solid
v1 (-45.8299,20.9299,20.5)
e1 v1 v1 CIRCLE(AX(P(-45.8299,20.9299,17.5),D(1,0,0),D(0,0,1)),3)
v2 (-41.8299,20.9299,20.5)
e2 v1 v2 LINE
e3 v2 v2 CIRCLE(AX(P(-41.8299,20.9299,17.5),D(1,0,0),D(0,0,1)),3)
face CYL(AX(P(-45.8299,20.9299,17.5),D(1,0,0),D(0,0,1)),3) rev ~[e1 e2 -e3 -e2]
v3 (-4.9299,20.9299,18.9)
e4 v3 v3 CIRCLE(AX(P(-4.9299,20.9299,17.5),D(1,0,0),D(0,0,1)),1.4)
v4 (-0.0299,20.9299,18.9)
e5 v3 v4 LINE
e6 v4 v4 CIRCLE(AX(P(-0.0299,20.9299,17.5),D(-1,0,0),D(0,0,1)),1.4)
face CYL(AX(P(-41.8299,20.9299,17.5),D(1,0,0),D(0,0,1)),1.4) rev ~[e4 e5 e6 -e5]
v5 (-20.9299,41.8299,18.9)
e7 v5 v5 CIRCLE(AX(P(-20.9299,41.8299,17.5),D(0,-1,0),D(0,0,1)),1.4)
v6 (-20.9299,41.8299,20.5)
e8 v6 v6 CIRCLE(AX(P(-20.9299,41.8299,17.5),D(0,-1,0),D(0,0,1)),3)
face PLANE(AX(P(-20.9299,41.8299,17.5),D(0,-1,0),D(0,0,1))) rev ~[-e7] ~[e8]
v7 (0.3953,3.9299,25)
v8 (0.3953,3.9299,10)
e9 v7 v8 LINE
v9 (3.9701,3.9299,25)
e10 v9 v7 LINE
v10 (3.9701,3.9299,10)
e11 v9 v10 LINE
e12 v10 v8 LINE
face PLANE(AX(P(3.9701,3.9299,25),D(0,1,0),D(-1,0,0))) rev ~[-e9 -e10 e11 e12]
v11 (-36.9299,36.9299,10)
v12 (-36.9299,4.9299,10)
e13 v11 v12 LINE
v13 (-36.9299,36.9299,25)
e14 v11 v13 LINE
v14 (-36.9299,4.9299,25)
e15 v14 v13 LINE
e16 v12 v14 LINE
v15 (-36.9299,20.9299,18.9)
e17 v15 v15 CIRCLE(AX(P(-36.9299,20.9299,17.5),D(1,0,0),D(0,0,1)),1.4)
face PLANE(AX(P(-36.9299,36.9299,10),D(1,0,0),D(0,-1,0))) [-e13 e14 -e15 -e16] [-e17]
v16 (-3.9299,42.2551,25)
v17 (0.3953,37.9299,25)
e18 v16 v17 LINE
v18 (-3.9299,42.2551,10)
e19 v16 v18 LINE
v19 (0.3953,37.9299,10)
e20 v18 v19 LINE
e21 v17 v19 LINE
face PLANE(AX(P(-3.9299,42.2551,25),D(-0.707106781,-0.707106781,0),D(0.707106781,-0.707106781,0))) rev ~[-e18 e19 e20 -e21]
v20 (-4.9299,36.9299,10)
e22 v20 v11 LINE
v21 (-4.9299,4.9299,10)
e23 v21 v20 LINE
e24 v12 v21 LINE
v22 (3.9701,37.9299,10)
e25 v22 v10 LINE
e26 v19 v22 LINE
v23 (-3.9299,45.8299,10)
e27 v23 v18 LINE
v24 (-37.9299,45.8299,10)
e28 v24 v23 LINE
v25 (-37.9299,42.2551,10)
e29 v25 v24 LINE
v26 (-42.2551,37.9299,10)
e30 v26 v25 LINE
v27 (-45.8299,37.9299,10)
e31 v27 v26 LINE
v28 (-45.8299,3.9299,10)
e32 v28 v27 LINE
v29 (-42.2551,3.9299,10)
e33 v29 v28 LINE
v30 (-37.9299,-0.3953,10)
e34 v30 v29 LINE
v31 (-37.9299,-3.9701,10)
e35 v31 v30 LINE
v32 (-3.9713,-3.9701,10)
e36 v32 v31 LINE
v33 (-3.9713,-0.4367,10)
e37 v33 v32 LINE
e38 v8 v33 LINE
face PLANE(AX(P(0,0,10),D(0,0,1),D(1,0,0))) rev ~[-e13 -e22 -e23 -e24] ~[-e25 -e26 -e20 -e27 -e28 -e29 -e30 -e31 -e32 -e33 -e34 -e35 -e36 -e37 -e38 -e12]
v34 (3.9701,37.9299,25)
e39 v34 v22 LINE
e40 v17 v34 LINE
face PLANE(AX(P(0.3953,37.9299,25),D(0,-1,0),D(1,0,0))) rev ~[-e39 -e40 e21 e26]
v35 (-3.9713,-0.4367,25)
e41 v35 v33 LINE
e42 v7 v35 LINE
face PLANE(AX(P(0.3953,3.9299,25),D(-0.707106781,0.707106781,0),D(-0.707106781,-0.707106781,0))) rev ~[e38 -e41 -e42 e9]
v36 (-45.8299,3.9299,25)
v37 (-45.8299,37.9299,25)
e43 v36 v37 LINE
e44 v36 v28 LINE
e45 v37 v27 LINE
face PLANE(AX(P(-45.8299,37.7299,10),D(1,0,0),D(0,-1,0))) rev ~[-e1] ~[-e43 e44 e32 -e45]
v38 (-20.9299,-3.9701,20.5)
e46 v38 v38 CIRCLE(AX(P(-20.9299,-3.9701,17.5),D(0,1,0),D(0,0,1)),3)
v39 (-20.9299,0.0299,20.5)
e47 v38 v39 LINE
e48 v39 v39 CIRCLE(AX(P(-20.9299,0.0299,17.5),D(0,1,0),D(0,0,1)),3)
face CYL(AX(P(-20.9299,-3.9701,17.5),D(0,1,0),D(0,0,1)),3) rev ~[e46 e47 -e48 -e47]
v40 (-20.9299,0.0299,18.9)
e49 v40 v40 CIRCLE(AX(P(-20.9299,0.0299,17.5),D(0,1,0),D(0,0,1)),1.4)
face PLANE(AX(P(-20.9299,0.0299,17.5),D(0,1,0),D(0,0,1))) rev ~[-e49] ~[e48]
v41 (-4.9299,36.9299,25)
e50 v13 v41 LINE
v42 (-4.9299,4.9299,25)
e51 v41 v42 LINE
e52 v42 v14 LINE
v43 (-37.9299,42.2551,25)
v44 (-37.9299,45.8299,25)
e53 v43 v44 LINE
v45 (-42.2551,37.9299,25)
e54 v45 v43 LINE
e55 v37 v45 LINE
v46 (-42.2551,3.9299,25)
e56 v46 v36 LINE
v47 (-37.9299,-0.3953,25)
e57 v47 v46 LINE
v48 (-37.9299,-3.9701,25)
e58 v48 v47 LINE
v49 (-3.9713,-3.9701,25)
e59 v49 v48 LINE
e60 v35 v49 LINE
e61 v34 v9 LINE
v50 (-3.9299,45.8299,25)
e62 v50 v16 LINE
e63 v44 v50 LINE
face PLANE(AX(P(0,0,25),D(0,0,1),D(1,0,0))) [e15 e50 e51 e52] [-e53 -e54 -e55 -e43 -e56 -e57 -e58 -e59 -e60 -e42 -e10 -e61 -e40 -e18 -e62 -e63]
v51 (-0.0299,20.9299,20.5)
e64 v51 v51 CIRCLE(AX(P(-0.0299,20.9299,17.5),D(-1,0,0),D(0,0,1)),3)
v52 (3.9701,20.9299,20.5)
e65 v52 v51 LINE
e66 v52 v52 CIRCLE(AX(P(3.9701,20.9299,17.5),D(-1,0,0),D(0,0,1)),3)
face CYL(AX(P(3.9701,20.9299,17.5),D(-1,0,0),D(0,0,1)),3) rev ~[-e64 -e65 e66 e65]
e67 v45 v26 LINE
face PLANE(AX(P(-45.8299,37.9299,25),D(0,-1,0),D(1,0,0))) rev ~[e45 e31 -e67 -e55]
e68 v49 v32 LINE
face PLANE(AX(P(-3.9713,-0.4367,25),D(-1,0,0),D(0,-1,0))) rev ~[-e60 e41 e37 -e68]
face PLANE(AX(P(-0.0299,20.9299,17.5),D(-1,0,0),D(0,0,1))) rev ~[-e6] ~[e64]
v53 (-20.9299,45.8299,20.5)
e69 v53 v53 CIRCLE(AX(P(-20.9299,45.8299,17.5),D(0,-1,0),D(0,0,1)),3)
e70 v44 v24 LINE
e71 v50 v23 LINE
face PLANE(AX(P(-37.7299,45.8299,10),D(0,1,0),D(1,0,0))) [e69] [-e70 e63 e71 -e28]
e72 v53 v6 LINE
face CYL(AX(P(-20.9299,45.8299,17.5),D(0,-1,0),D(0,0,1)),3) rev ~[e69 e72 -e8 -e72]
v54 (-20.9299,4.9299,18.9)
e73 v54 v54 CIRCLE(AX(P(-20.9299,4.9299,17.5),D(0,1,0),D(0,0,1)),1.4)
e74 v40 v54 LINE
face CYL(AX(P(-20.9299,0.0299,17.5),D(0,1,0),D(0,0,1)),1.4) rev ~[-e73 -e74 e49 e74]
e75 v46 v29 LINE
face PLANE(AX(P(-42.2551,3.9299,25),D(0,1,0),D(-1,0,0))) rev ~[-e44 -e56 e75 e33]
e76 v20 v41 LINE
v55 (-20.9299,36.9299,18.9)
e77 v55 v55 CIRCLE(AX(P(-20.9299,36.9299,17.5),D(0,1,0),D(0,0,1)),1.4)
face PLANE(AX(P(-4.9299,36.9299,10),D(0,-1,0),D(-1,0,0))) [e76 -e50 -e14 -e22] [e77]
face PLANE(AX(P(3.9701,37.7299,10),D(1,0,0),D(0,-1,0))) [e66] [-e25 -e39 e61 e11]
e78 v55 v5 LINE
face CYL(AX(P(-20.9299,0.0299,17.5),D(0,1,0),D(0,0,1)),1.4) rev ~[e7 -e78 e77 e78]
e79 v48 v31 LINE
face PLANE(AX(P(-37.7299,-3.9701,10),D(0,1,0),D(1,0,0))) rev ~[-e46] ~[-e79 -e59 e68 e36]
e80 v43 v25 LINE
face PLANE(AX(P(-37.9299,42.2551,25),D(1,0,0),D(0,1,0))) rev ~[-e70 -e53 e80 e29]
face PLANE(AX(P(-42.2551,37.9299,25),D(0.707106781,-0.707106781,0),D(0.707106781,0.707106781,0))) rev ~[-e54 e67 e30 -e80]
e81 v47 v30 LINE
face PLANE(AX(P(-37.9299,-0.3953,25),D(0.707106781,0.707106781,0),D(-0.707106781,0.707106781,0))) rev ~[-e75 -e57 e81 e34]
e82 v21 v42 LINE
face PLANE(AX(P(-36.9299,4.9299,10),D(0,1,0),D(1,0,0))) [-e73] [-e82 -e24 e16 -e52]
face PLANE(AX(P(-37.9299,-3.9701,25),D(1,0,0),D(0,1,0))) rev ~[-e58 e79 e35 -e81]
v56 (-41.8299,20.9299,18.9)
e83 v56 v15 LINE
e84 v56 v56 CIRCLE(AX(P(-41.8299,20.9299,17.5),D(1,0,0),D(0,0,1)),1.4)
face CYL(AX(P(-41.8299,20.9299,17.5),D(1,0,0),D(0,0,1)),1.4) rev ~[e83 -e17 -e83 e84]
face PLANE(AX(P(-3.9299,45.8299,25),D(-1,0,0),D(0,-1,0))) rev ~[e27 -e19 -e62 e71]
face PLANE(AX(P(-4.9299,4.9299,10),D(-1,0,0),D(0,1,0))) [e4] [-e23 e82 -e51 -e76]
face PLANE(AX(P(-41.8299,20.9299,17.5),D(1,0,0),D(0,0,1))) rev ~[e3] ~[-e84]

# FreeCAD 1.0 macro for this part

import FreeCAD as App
import Part
import Sketcher
from FreeCAD import Vector


def add_polygon(sketch, points):
    """Adds a closed chain of lines whose ends are joined by coincident constraints."""
    first, n = sketch.GeometryCount, len(points)
    for a, b in zip(points, points[1:] + points[:1]):
        sketch.addGeometry(Part.LineSegment(App.Vector(*a, 0), App.Vector(*b, 0)), False)
    for i in range(n):
        sketch.addConstraint(Sketcher.Constraint("Coincident", first + i, 2, first + (i + 1) % n, 1))

doc = App.newDocument("Part")
body = doc.addObject("PartDesign::Body", "Body")

sketch1 = body.newObject("Sketcher::SketchObject", "Sketch")
sketch1.AttachmentSupport = (doc.getObject("XY_Plane"), [""])
sketch1.MapMode = "FlatFace"
sketch1.AttachmentOffset = App.Placement(Vector(0, 0, 10), App.Rotation())
add_polygon(sketch1, [(-4.171, -0.354), (0.312, 4.13), (3.97, 4.13), (3.97, 37.73), (0.312, 37.73), (-4.13, 42.172), (-4.13, 45.83), (-37.73, 45.83), (-37.73, 42.172), (-42.172, 37.73), (-45.83, 37.73), (-45.83, 4.13), (-42.172, 4.13), (-37.689, -0.354), (-37.73, -0.354), (-37.73, -3.97), (-4.171, -3.97)])
sketch1.addConstraint(Sketcher.Constraint("Horizontal", 1))
sketch1.addConstraint(Sketcher.Constraint("Vertical", 2))
sketch1.addConstraint(Sketcher.Constraint("Horizontal", 3))
sketch1.addConstraint(Sketcher.Constraint("Vertical", 5))
sketch1.addConstraint(Sketcher.Constraint("Horizontal", 6))
sketch1.addConstraint(Sketcher.Constraint("Vertical", 7))
sketch1.addConstraint(Sketcher.Constraint("Horizontal", 9))
sketch1.addConstraint(Sketcher.Constraint("Vertical", 10))
sketch1.addConstraint(Sketcher.Constraint("Horizontal", 11))
sketch1.addConstraint(Sketcher.Constraint("Horizontal", 13))
sketch1.addConstraint(Sketcher.Constraint("Vertical", 14))
sketch1.addConstraint(Sketcher.Constraint("Horizontal", 15))
sketch1.addConstraint(Sketcher.Constraint("Vertical", 16))
sketch1.addConstraint(Sketcher.Constraint("Perpendicular", 0, 4))
sketch1.addConstraint(Sketcher.Constraint("Perpendicular", 4, 8))
sketch1.addConstraint(Sketcher.Constraint("Perpendicular", 8, 12))
sketch1.addConstraint(Sketcher.Constraint("Horizontal", 4, 2, 7, 2))
sketch1.addConstraint(Sketcher.Constraint("Horizontal", 3, 2, 8, 2))
sketch1.addConstraint(Sketcher.Constraint("Horizontal", 1, 2, 10, 2))
sketch1.addConstraint(Sketcher.Constraint("Horizontal", 13, 2, 16, 2))
sketch1.addConstraint(Sketcher.Constraint("Vertical", 0, 2, 3, 2))
sketch1.addConstraint(Sketcher.Constraint("Vertical", 8, 2, 11, 2))
sketch1.addConstraint(Sketcher.Constraint("Vertical", 7, 2, 13, 2))
sketch1.addConstraint(Sketcher.Constraint("Equal", 3, 9))
sketch1.addConstraint(Sketcher.Constraint("Equal", 6, 2))
sketch1.addConstraint(Sketcher.Constraint("Equal", 11, 5))
sketch1.addConstraint(Sketcher.Constraint("Equal", 4, 8))
sketch1.addConstraint(Sketcher.Constraint("DistanceX", 6, 2, 6, 1, 33.6))
sketch1.addConstraint(Sketcher.Constraint("DistanceX", 4, 2, 2, 2, 8.1))
sketch1.addConstraint(Sketcher.Constraint("DistanceY", 14, 2, 11, 2, 8.1))
sketch1.addConstraint(Sketcher.Constraint("DistanceY", -1, 1, 0, 2, 4.13))
sketch1.addConstraint(Sketcher.Constraint("DistanceX", -1, 1, 1, 2, 3.97))
sketch1.addConstraint(Sketcher.Constraint("Distance", 0, 6.341))
sketch1.addConstraint(Sketcher.Constraint("DistanceX", 1, 1, 1, 2, 3.6577))
pad1 = body.newObject("PartDesign::Pad", "Pad")
pad1.Profile = sketch1
pad1.Length = 15

sketch2 = body.newObject("Sketcher::SketchObject", "Sketch001")
sketch2.AttachmentSupport = (doc.getObject("XY_Plane"), [""])
sketch2.MapMode = "FlatFace"
sketch2.AttachmentOffset = App.Placement(Vector(0, 0, 25), App.Rotation())
add_polygon(sketch2, [(3.97, 3.93), (3.97, 4.13), (0.312, 4.13), (-4.171, -0.354), (-4.171, -3.97), (-3.971, -3.97), (-3.971, -0.437), (0.395, 3.93)])
add_polygon(sketch2, [(-3.93, 45.83), (-4.13, 45.83), (-4.13, 42.172), (0.312, 37.73), (3.97, 37.73), (3.97, 37.93), (0.395, 37.93), (-3.93, 42.255)])
add_polygon(sketch2, [(-42.172, 37.73), (-37.73, 42.172), (-37.73, 45.83), (-37.93, 45.83), (-37.93, 42.255), (-42.255, 37.93), (-45.83, 37.93), (-45.83, 37.73)])
add_polygon(sketch2, [(-42.172, 4.13), (-45.83, 4.13), (-45.83, 3.93), (-42.255, 3.93), (-37.93, -0.395), (-37.93, -3.97), (-37.73, -3.97), (-37.73, -0.354), (-37.688, -0.354)])
sketch2.addConstraint(Sketcher.Constraint("Vertical", 0))
sketch2.addConstraint(Sketcher.Constraint("Horizontal", 1))
sketch2.addConstraint(Sketcher.Constraint("Vertical", 3))
sketch2.addConstraint(Sketcher.Constraint("Horizontal", 4))
sketch2.addConstraint(Sketcher.Constraint("Vertical", 5))
sketch2.addConstraint(Sketcher.Constraint("Horizontal", 7))
sketch2.addConstraint(Sketcher.Constraint("Horizontal", 8))
sketch2.addConstraint(Sketcher.Constraint("Vertical", 9))
sketch2.addConstraint(Sketcher.Constraint("Horizontal", 11))
sketch2.addConstraint(Sketcher.Constraint("Vertical", 12))
sketch2.addConstraint(Sketcher.Constraint("Horizontal", 13))
sketch2.addConstraint(Sketcher.Constraint("Vertical", 15))
sketch2.addConstraint(Sketcher.Constraint("Vertical", 17))
sketch2.addConstraint(Sketcher.Constraint("Horizontal", 18))
sketch2.addConstraint(Sketcher.Constraint("Vertical", 19))
sketch2.addConstraint(Sketcher.Constraint("Horizontal", 21))
sketch2.addConstraint(Sketcher.Constraint("Vertical", 22))
sketch2.addConstraint(Sketcher.Constraint("Horizontal", 23))
sketch2.addConstraint(Sketcher.Constraint("Horizontal", 24))
sketch2.addConstraint(Sketcher.Constraint("Vertical", 25))
sketch2.addConstraint(Sketcher.Constraint("Horizontal", 26))
sketch2.addConstraint(Sketcher.Constraint("Vertical", 28))
sketch2.addConstraint(Sketcher.Constraint("Horizontal", 29))
sketch2.addConstraint(Sketcher.Constraint("Vertical", 30))
sketch2.addConstraint(Sketcher.Constraint("Horizontal", 31))
sketch2.addConstraint(Sketcher.Constraint("Parallel", 2, 6))
sketch2.addConstraint(Sketcher.Constraint("Perpendicular", 6, 10))
sketch2.addConstraint(Sketcher.Constraint("Parallel", 10, 14))
sketch2.addConstraint(Sketcher.Constraint("Perpendicular", 14, 16))
sketch2.addConstraint(Sketcher.Constraint("Parallel", 16, 20))
sketch2.addConstraint(Sketcher.Constraint("Perpendicular", 20, 27))
sketch2.addConstraint(Sketcher.Constraint("Parallel", 27, 32))
sketch2.addConstraint(Sketcher.Constraint("Horizontal", 9, 2, 16, 2))
sketch2.addConstraint(Sketcher.Constraint("Horizontal", 15, 2, 17, 2))
sketch2.addConstraint(Sketcher.Constraint("Horizontal", 14, 2, 19, 2))
sketch2.addConstraint(Sketcher.Constraint("Horizontal", 13, 2, 20, 2))
sketch2.addConstraint(Sketcher.Constraint("Horizontal", 11, 2, 22, 2))
sketch2.addConstraint(Sketcher.Constraint("Horizontal", 1, 2, 24, 2))
sketch2.addConstraint(Sketcher.Constraint("Horizontal", 7, 2, 25, 2))
sketch2.addConstraint(Sketcher.Constraint("Horizontal", 4, 2, 28, 2))
sketch2.addConstraint(Sketcher.Constraint("Horizontal", 2, 2, 30, 2))
sketch2.addConstraint(Sketcher.Constraint("Vertical", 1, 2, 10, 2))
sketch2.addConstraint(Sketcher.Constraint("Vertical", 7, 2, 11, 2))
sketch2.addConstraint(Sketcher.Constraint("Vertical", 6, 2, 13, 2))
sketch2.addConstraint(Sketcher.Constraint("Vertical", 22, 2, 24, 2))
sketch2.addConstraint(Sketcher.Constraint("Vertical", 20, 2, 26, 2))
sketch2.addConstraint(Sketcher.Constraint("Vertical", 19, 2, 27, 2))
sketch2.addConstraint(Sketcher.Constraint("Vertical", 17, 2, 29, 2))
sketch2.addConstraint(Sketcher.Constraint("Vertical", 23, 2, 32, 2))
sketch2.addConstraint(Sketcher.Constraint("Equal", 4, 8))
sketch2.addConstraint(Sketcher.Constraint("Equal", 8, 18))
sketch2.addConstraint(Sketcher.Constraint("Equal", 13, 21))
sketch2.addConstraint(Sketcher.Constraint("Equal", 11, 23))
sketch2.addConstraint(Sketcher.Constraint("Equal", 29, 0))
sketch2.addConstraint(Sketcher.Constraint("Equal", 24, 9))
sketch2.addConstraint(Sketcher.Constraint("Equal", 0, 12))
sketch2.addConstraint(Sketcher.Constraint("Equal", 19, 28))
sketch2.addConstraint(Sketcher.Constraint("DistanceX", 4, 1, 4, 2, 0.2))
sketch2.addConstraint(Sketcher.Constraint("DistanceX", 18, 2, 15, 2, 34.0))
sketch2.addConstraint(Sketcher.Constraint("DistanceY", 25, 2, 21, 2, 34.0))
sketch2.addConstraint(Sketcher.Constraint("DistanceY", 3, 2, 1, 2, 8.1))
sketch2.addConstraint(Sketcher.Constraint("DistanceX", -1, 1, 0, 2, 3.97))
sketch2.addConstraint(Sketcher.Constraint("DistanceY", -1, 1, 0, 2, 4.13))
sketch2.addConstraint(Sketcher.Constraint("Distance", 2, 6.341))
sketch2.addConstraint(Sketcher.Constraint("DistanceX", 1, 2, 1, 1, 3.6577))
sketch2.addConstraint(Sketcher.Constraint("DistanceX", 7, 1, 7, 2, 3.5748))
pad2 = body.newObject("PartDesign::Pad", "Pad001")
pad2.Profile = sketch2
pad2.Length = 15
pad2.Reversed = True

sketch3 = body.newObject("Sketcher::SketchObject", "Sketch002")
sketch3.AttachmentSupport = (doc.getObject("XY_Plane"), [""])
sketch3.MapMode = "FlatFace"
sketch3.AttachmentOffset = App.Placement(Vector(0, 0, 10), App.Rotation())
add_polygon(sketch3, [(-5, 5), (-37, 5), (-37, 37), (-5, 37)])
sketch3.addConstraint(Sketcher.Constraint("Horizontal", 0))
sketch3.addConstraint(Sketcher.Constraint("Vertical", 1))
sketch3.addConstraint(Sketcher.Constraint("Horizontal", 2))
sketch3.addConstraint(Sketcher.Constraint("Vertical", 3))
sketch3.addConstraint(Sketcher.Constraint("Equal", 2, 1))
sketch3.addConstraint(Sketcher.Constraint("DistanceX", 0, 2, 0, 1, 32.0))
sketch3.addConstraint(Sketcher.Constraint("DistanceX", 0, 2, -1, 1, 36.93))
sketch3.addConstraint(Sketcher.Constraint("DistanceY", -1, 1, 0, 2, 4.93))
pocket1 = body.newObject("PartDesign::Pocket", "Pocket")
pocket1.Profile = sketch3
pocket1.Type = "ThroughAll"
pocket1.Reversed = True

sketch4 = body.newObject("Sketcher::SketchObject", "Sketch003")
sketch4.AttachmentSupport = (doc.getObject("YZ_Plane"), [""])
sketch4.MapMode = "FlatFace"
sketch4.AttachmentOffset = App.Placement(Vector(0, 0, -45.8299), App.Rotation())
sketch4.addGeometry(Part.Circle(Vector(20.9, 17.5, 0), Vector(0, 0, 1), 1.4), False)
sketch4.addConstraint(Sketcher.Constraint("Diameter", 0, 2.8))
sketch4.addConstraint(Sketcher.Constraint("DistanceY", -1, 1, 0, 3, 17.5))
sketch4.addConstraint(Sketcher.Constraint("DistanceX", -1, 1, 0, 3, 20.93))
doc.recompute()
hole = body.newObject("PartDesign::Hole", "Hole")
hole.Profile = sketch4
hole.ThreadType = "None"
hole.Diameter = 2.8
hole.DepthType = "ThroughAll"
hole.HoleCutType = "Counterbore"
hole.HoleCutDiameter = 6
hole.HoleCutDepth = 4
hole.Reversed = True
doc.recompute()

datumline = body.newObject("PartDesign::Line", "DatumLine")
datumline.Placement = App.Placement(Vector(-20.9299, 20.9299, 0), App.Rotation(Vector(0, 0, 1), Vector(0, 0, 1)))
polarpattern = body.newObject("PartDesign::PolarPattern", "PolarPattern")
polarpattern.Originals = [hole]
polarpattern.Axis = (datumline, [""])
polarpattern.Angle = 360
polarpattern.Occurrences = 4
body.Tip = polarpattern

doc.recompute()
